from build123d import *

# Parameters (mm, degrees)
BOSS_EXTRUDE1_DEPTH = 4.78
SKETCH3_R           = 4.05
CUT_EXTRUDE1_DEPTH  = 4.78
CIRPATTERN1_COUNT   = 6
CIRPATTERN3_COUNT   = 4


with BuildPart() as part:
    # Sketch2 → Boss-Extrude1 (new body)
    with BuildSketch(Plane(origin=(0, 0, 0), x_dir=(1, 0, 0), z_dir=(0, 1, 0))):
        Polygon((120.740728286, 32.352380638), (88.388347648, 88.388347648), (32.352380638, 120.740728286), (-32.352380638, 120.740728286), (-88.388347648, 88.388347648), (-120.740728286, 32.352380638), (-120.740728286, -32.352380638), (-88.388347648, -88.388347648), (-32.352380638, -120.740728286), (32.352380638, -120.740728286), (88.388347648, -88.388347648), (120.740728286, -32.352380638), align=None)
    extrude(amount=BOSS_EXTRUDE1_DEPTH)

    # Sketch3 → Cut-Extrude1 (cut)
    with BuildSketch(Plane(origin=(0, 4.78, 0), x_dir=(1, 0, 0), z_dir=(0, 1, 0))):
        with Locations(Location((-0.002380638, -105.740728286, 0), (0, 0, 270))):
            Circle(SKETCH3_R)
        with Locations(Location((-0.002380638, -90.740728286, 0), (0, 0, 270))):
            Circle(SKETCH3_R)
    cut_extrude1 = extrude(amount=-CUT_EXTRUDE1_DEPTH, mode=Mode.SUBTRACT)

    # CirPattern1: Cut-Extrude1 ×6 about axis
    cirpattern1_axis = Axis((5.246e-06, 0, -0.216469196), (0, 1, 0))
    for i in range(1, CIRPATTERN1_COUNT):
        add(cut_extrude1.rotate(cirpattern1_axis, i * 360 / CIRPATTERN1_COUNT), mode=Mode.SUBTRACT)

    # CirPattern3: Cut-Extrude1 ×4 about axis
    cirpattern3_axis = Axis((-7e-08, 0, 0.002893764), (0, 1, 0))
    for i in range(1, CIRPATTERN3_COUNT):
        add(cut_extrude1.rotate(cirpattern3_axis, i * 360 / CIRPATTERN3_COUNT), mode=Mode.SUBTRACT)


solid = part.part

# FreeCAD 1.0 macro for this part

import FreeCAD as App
import Part
import Sketcher
from FreeCAD import Vector
Q = App.Units.Quantity

doc = App.newDocument("Part")
body = doc.addObject("PartDesign::Body", "Body")

# Sketch on XZ plane
sketch1 = doc.addObject("Sketcher::SketchObject", "Sketch")
body.addObject(sketch1)
sketch1.AttachmentSupport = (doc.XZ_Plane, [""])
sketch1.MapMode = "FlatFace"
sketch1.addGeometry([
    Part.LineSegment(Vector(121, -32, 0), Vector(88, -88, 0)),  # 0
    Part.LineSegment(Vector(88, -88, 0), Vector(32, -121, 0)),  # 1
    Part.LineSegment(Vector(32, -121, 0), Vector(-32, -121, 0)),  # 2
    Part.LineSegment(Vector(-32, -121, 0), Vector(-88, -88, 0)),  # 3
    Part.LineSegment(Vector(-88, -88, 0), Vector(-121, -32, 0)),  # 4
    Part.LineSegment(Vector(-121, -32, 0), Vector(-121, 32, 0)),  # 5
    Part.LineSegment(Vector(-121, 32, 0), Vector(-88, 88, 0)),  # 6
    Part.LineSegment(Vector(-88, 88, 0), Vector(-32, 121, 0)),  # 7
    Part.LineSegment(Vector(-32, 121, 0), Vector(32, 121, 0)),  # 8
    Part.LineSegment(Vector(32, 121, 0), Vector(88, 88, 0)),  # 9
    Part.LineSegment(Vector(88, 88, 0), Vector(121, 32, 0)),  # 10
    Part.LineSegment(Vector(121, 32, 0), Vector(121, -32, 0)),  # 11
], False)
sketch1.addConstraint([
    Sketcher.Constraint("Coincident", 0, 2, 1, 1),
    Sketcher.Constraint("Coincident", 1, 2, 2, 1),
    Sketcher.Constraint("Coincident", 2, 2, 3, 1),
    Sketcher.Constraint("Coincident", 3, 2, 4, 1),
    Sketcher.Constraint("Coincident", 4, 2, 5, 1),
    Sketcher.Constraint("Coincident", 5, 2, 6, 1),
    Sketcher.Constraint("Coincident", 6, 2, 7, 1),
    Sketcher.Constraint("Coincident", 7, 2, 8, 1),
    Sketcher.Constraint("Coincident", 8, 2, 9, 1),
    Sketcher.Constraint("Coincident", 9, 2, 10, 1),
    Sketcher.Constraint("Coincident", 10, 2, 11, 1),
    Sketcher.Constraint("Coincident", 11, 2, 0, 1),
    Sketcher.Constraint("Horizontal", 2),
    Sketcher.Constraint("Vertical", 5),
    Sketcher.Constraint("Horizontal", 8),
    Sketcher.Constraint("Vertical", 11),
    Sketcher.Constraint("Symmetric", 0, 2, 6, 2, -1, 1),
    Sketcher.Constraint("Symmetric", 1, 2, 7, 2, -1, 1),
    Sketcher.Constraint("Symmetric", 3, 2, 9, 2, -1, 1),
    Sketcher.Constraint("Symmetric", 4, 2, 10, 2, -1, 1),
    Sketcher.Constraint("Symmetric", 0, 2, 3, 2, -2),
    Sketcher.Constraint("Perpendicular", 0, 3),
    Sketcher.Constraint("Perpendicular", 1, 4),
    Sketcher.Constraint("Perpendicular", 3, 6),
    Sketcher.Constraint("Perpendicular", 6, 9),
    Sketcher.Constraint("Horizontal", 5, 2, 10, 2),
    Sketcher.Constraint("Equal", 8, 5),
    Sketcher.Constraint("Equal", 0, 1),
    Sketcher.Constraint("Angle", 0, Q("-120 deg")),
    Sketcher.Constraint("DistanceX", 2, 2, 2, 1, Q("64.704761 mm")),
    Sketcher.Constraint("Distance", 0, Q("64.704761 mm")),
])
pad1 = doc.addObject("PartDesign::Pad", "Pad")
body.addObject(pad1)
pad1.Profile = sketch1
pad1.Length = 4.78
pad1.Reversed = True

# Sketch on XZ plane
sketch2 = doc.addObject("Sketcher::SketchObject", "Sketch001")
body.addObject(sketch2)
sketch2.AttachmentSupport = (doc.XZ_Plane, [""])
sketch2.MapMode = "FlatFace"
sketch2.AttachmentOffset = App.Placement(Vector(0, 0, -4.78), App.Rotation())
sketch2.addGeometry([
    Part.Circle(Vector(0, 105.7, 0), Vector(0, 0, 1), 4),
    Part.Circle(Vector(0, 90.7, 0), Vector(0, 0, 1), 4),
], False)
sketch2.addConstraint([
    Sketcher.Constraint("Equal", 0, 1),
    Sketcher.Constraint("Vertical", 0, 3, 1, 3),
    Sketcher.Constraint("Diameter", 0, Q("8.1 mm")),
    Sketcher.Constraint("DistanceY", 1, 3, 0, 3, Q("15 mm")),
    Sketcher.Constraint("DistanceX", 0, 3, -1, 1, Q("0.002381 mm")),
    Sketcher.Constraint("DistanceY", -1, 1, 0, 3, Q("105.740728 mm")),
])
pocket1 = doc.addObject("PartDesign::Pocket", "Pocket")
body.addObject(pocket1)
pocket1.Profile = sketch2
pocket1.Length = 4.78
pocket1.Reversed = True
doc.recompute()

datumline = doc.addObject("PartDesign::Line", "DatumLine")
body.addObject(datumline)
datumline.Placement = App.Placement(Vector(0.000005, 0, -0.216469), App.Rotation(Vector(0, 0, 1), Vector(0, 1, 0)))
polarpattern = doc.addObject("PartDesign::PolarPattern", "PolarPattern")
body.addObject(polarpattern)
polarpattern.Originals = [pocket1]
polarpattern.Axis = (datumline, [""])
polarpattern.Angle = 360
polarpattern.Occurrences = 6
body.Tip = polarpattern
doc.recompute()

datumline2 = doc.addObject("PartDesign::Line", "DatumLine001")
body.addObject(datumline2)
datumline2.Placement = App.Placement(Vector(0, 0, 0.002894), App.Rotation(Vector(0, 0, 1), Vector(0, 1, 0)))
polarpattern2 = doc.addObject("PartDesign::PolarPattern", "PolarPattern001")
body.addObject(polarpattern2)
polarpattern2.Originals = [pocket1]
polarpattern2.Axis = (datumline2, [""])
polarpattern2.Angle = 360
polarpattern2.Occurrences = 4
body.Tip = polarpattern2

doc.recompute()
